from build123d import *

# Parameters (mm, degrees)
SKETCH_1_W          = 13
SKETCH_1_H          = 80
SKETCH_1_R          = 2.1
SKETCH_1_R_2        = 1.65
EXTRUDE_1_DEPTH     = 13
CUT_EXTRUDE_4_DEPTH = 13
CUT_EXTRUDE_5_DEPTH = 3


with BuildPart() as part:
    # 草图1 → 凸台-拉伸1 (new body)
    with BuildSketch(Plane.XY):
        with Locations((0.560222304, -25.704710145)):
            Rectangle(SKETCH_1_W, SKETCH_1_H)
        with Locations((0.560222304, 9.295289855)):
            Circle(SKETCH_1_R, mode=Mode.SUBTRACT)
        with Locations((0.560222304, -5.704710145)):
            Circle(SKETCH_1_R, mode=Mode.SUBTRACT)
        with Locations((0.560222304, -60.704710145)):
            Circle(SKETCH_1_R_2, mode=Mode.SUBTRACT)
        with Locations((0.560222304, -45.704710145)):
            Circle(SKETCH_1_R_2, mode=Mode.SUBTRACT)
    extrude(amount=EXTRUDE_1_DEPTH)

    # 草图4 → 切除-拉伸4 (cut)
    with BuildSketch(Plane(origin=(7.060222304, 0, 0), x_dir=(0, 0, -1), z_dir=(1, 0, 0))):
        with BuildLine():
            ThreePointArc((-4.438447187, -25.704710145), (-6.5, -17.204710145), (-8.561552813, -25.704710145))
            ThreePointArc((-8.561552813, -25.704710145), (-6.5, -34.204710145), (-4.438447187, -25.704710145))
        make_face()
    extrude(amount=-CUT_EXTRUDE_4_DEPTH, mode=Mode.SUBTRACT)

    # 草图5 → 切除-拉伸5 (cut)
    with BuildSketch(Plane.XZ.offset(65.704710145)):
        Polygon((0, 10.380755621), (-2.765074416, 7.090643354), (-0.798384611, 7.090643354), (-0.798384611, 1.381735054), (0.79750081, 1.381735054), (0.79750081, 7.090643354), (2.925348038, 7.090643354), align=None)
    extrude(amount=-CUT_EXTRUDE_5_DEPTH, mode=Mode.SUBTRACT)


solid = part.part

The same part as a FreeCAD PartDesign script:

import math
import FreeCAD as App
import Part
import Sketcher
from FreeCAD import Vector

doc = App.newDocument("Part")
params = doc.addObject("Spreadsheet::Sheet", "Params")
for row, (alias, value) in enumerate([
    ("sketch1_diameter", "3.3 mm"),
    ("sketch1_diameter2", "4.2 mm"),
    ("sketch1_width", "13 mm"),
    ("sketch1_height", "80 mm"),
    ("pad1_length", "13 mm"),
    ("sketch2_radius", "4.5 mm"),
    ("pocket1_length", "13 mm"),
    ("pocket2_length", "3 mm"),
], start=1):
    params.set(f"A{row}", alias)
    params.set(f"B{row}", "=" + value)
    params.setAlias(f"B{row}", alias)

body = doc.addObject("PartDesign::Body", "Body")

# Sketch on XY plane
sketch1 = doc.addObject("Sketcher::SketchObject", "Sketch")
body.addObject(sketch1)
sketch1.AttachmentSupport = (doc.XY_Plane, [""])
sketch1.MapMode = "FlatFace"
sketch1.addGeometry([
    Part.LineSegment(Vector(-5.9, 14.3, 0), Vector(-5.9, -65.7, 0)),  # 0
    Part.LineSegment(Vector(-5.9, -65.7, 0), Vector(7.1, -65.7, 0)),  # 1
    Part.LineSegment(Vector(7.1, -65.7, 0), Vector(7.1, 14.3, 0)),  # 2
    Part.LineSegment(Vector(7.1, 14.3, 0), Vector(-5.9, 14.3, 0)),  # 3
    Part.Circle(Vector(0.6, -60.7, 0), Vector(0, 0, 1), 1.6),  # 4
    Part.Circle(Vector(0.6, -45.7, 0), Vector(0, 0, 1), 1.6),  # 5
    Part.Circle(Vector(0.6, -5.7, 0), Vector(0, 0, 1), 2.1),  # 6
    Part.Circle(Vector(0.6, 9.3, 0), Vector(0, 0, 1), 2.1),  # 7
], False)
sketch1.addConstraint([
    Sketcher.Constraint("Coincident", 0, 2, 1, 1),
    Sketcher.Constraint("Coincident", 1, 2, 2, 1),
    Sketcher.Constraint("Coincident", 2, 2, 3, 1),
    Sketcher.Constraint("Coincident", 3, 2, 0, 1),
    Sketcher.Constraint("Vertical", 0),
    Sketcher.Constraint("Horizontal", 1),
    Sketcher.Constraint("Vertical", 2),
    Sketcher.Constraint("Horizontal", 3),
    Sketcher.Constraint("Equal", 4, 5),
    Sketcher.Constraint("Equal", 6, 7),
    Sketcher.Constraint("Vertical", 4, 3, 5, 3),
    Sketcher.Constraint("Vertical", 5, 3, 6, 3),
    Sketcher.Constraint("Vertical", 6, 3, 7, 3),
    Sketcher.Constraint("Diameter", 4, 3.3),
    Sketcher.Constraint("Diameter", 6, 4.2),
    Sketcher.Constraint("DistanceX", 1, 1, 1, 2, 13.0),
    Sketcher.Constraint("DistanceY", 0, 2, 0, 1, 80.0),
    Sketcher.Constraint("DistanceY", 4, 3, 5, 3, 15.0),
    Sketcher.Constraint("DistanceY", 5, 3, 6, 3, 40.0),
    Sketcher.Constraint("DistanceY", 6, 3, 7, 3, 15.0),
    Sketcher.Constraint("DistanceY", 0, 2, 4, 3, 5.0),
    Sketcher.Constraint("DistanceX", 0, 2, 4, 3, 6.5),
    Sketcher.Constraint("DistanceY", 4, 3, -1, 1, 60.70471),
    Sketcher.Constraint("DistanceX", -1, 1, 4, 3, 0.560222),
])
sketch1.setExpression("Constraints[13]", "Params.sketch1_diameter")
sketch1.setExpression("Constraints[14]", "Params.sketch1_diameter2")
sketch1.setExpression("Constraints[15]", "Params.sketch1_width")
sketch1.setExpression("Constraints[16]", "Params.sketch1_height")
pad1 = doc.addObject("PartDesign::Pad", "Pad")
body.addObject(pad1)
pad1.Profile = sketch1
pad1.setExpression("Length", "Params.pad1_length")

# Sketch on YZ plane
sketch2 = doc.addObject("Sketcher::SketchObject", "Sketch001")
body.addObject(sketch2)
sketch2.AttachmentSupport = (doc.YZ_Plane, [""])
sketch2.MapMode = "FlatFace"
sketch2.AttachmentOffset = App.Placement(Vector(0, 0, 7.060222), App.Rotation())
sketch2.addGeometry([
    Part.ArcOfCircle(Part.Circle(Vector(-21.7, 6.5, 0), Vector(0, 0, 1), 4.5), math.radians(-153), math.radians(153)),
    Part.ArcOfCircle(Part.Circle(Vector(-29.7, 6.5, 0), Vector(0, 0, 1), 4.5), math.radians(27), math.radians(333)),
], False)
sketch2.addConstraint([
    Sketcher.Constraint("Coincident", 0, 1, 1, 2),
    Sketcher.Constraint("Coincident", 1, 1, 0, 2),
    Sketcher.Constraint("Equal", 0, 1),
    Sketcher.Constraint("Horizontal", 0, 3, 1, 3),
    Sketcher.Constraint("Radius", 0, 4.5),
    Sketcher.Constraint("DistanceX", 1, 3, 0, 3, 8.0),
    Sketcher.Constraint("DistanceY", -1, 1, 0, 3, 6.5),
    Sketcher.Constraint("DistanceX", 0, 3, -1, 1, 21.70471),
])
sketch2.setExpression("Constraints[4]", "Params.sketch2_radius")
pocket1 = doc.addObject("PartDesign::Pocket", "Pocket")
body.addObject(pocket1)
pocket1.Profile = sketch2
pocket1.setExpression("Length", "Params.pocket1_length")

# Sketch on XZ plane
sketch3 = doc.addObject("Sketcher::SketchObject", "Sketch002")
body.addObject(sketch3)
sketch3.AttachmentSupport = (doc.XZ_Plane, [""])
sketch3.MapMode = "FlatFace"
sketch3.AttachmentOffset = App.Placement(Vector(0, 0, 65.70471), App.Rotation())
sketch3.addGeometry([
    Part.LineSegment(Vector(0, 10.4, 0), Vector(-2.8, 7.1, 0)),  # 0
    Part.LineSegment(Vector(-2.8, 7.1, 0), Vector(-0.8, 7.1, 0)),  # 1
    Part.LineSegment(Vector(-0.8, 7.1, 0), Vector(-0.8, 1.4, 0)),  # 2
    Part.LineSegment(Vector(-0.8, 1.4, 0), Vector(0.8, 1.4, 0)),  # 3
    Part.LineSegment(Vector(0.8, 1.4, 0), Vector(0.8, 7.1, 0)),  # 4
    Part.LineSegment(Vector(0.8, 7.1, 0), Vector(2.9, 7.1, 0)),  # 5
    Part.LineSegment(Vector(2.9, 7.1, 0), Vector(0, 10.4, 0)),  # 6
], False)
sketch3.addConstraint([
    Sketcher.Constraint("Coincident", 0, 2, 1, 1),
    Sketcher.Constraint("Coincident", 1, 2, 2, 1),
    Sketcher.Constraint("Coincident", 2, 2, 3, 1),
    Sketcher.Constraint("Coincident", 3, 2, 4, 1),
    Sketcher.Constraint("Coincident", 4, 2, 5, 1),
    Sketcher.Constraint("Coincident", 5, 2, 6, 1),
    Sketcher.Constraint("Coincident", 6, 2, 0, 1),
    Sketcher.Constraint("Horizontal", 1),
    Sketcher.Constraint("Vertical", 2),
    Sketcher.Constraint("Horizontal", 3),
    Sketcher.Constraint("Vertical", 4),
    Sketcher.Constraint("Horizontal", 5),
    Sketcher.Constraint("PointOnObject", 6, 2, -2),
    Sketcher.Constraint("Horizontal", 1, 2, 4, 2),
    Sketcher.Constraint("DistanceX", 1, 1, 1, 2, 1.96669),
    Sketcher.Constraint("DistanceY", 2, 2, 2, 1, 5.708908),
    Sketcher.Constraint("DistanceX", -1, 1, 3, 2, 0.797501),
    Sketcher.Constraint("Distance", 0, 4.297729),
    Sketcher.Constraint("DistanceX", 3, 1, 3, 2, 1.595885),
    Sketcher.Constraint("DistanceX", 5, 1, 5, 2, 2.127847),
    Sketcher.Constraint("DistanceY", -1, 1, 0, 2, 7.090643),
])
pocket2 = doc.addObject("PartDesign::Pocket", "Pocket001")
body.addObject(pocket2)
pocket2.Profile = sketch3
pocket2.setExpression("Length", "Params.pocket2_length")

doc.recompute()
